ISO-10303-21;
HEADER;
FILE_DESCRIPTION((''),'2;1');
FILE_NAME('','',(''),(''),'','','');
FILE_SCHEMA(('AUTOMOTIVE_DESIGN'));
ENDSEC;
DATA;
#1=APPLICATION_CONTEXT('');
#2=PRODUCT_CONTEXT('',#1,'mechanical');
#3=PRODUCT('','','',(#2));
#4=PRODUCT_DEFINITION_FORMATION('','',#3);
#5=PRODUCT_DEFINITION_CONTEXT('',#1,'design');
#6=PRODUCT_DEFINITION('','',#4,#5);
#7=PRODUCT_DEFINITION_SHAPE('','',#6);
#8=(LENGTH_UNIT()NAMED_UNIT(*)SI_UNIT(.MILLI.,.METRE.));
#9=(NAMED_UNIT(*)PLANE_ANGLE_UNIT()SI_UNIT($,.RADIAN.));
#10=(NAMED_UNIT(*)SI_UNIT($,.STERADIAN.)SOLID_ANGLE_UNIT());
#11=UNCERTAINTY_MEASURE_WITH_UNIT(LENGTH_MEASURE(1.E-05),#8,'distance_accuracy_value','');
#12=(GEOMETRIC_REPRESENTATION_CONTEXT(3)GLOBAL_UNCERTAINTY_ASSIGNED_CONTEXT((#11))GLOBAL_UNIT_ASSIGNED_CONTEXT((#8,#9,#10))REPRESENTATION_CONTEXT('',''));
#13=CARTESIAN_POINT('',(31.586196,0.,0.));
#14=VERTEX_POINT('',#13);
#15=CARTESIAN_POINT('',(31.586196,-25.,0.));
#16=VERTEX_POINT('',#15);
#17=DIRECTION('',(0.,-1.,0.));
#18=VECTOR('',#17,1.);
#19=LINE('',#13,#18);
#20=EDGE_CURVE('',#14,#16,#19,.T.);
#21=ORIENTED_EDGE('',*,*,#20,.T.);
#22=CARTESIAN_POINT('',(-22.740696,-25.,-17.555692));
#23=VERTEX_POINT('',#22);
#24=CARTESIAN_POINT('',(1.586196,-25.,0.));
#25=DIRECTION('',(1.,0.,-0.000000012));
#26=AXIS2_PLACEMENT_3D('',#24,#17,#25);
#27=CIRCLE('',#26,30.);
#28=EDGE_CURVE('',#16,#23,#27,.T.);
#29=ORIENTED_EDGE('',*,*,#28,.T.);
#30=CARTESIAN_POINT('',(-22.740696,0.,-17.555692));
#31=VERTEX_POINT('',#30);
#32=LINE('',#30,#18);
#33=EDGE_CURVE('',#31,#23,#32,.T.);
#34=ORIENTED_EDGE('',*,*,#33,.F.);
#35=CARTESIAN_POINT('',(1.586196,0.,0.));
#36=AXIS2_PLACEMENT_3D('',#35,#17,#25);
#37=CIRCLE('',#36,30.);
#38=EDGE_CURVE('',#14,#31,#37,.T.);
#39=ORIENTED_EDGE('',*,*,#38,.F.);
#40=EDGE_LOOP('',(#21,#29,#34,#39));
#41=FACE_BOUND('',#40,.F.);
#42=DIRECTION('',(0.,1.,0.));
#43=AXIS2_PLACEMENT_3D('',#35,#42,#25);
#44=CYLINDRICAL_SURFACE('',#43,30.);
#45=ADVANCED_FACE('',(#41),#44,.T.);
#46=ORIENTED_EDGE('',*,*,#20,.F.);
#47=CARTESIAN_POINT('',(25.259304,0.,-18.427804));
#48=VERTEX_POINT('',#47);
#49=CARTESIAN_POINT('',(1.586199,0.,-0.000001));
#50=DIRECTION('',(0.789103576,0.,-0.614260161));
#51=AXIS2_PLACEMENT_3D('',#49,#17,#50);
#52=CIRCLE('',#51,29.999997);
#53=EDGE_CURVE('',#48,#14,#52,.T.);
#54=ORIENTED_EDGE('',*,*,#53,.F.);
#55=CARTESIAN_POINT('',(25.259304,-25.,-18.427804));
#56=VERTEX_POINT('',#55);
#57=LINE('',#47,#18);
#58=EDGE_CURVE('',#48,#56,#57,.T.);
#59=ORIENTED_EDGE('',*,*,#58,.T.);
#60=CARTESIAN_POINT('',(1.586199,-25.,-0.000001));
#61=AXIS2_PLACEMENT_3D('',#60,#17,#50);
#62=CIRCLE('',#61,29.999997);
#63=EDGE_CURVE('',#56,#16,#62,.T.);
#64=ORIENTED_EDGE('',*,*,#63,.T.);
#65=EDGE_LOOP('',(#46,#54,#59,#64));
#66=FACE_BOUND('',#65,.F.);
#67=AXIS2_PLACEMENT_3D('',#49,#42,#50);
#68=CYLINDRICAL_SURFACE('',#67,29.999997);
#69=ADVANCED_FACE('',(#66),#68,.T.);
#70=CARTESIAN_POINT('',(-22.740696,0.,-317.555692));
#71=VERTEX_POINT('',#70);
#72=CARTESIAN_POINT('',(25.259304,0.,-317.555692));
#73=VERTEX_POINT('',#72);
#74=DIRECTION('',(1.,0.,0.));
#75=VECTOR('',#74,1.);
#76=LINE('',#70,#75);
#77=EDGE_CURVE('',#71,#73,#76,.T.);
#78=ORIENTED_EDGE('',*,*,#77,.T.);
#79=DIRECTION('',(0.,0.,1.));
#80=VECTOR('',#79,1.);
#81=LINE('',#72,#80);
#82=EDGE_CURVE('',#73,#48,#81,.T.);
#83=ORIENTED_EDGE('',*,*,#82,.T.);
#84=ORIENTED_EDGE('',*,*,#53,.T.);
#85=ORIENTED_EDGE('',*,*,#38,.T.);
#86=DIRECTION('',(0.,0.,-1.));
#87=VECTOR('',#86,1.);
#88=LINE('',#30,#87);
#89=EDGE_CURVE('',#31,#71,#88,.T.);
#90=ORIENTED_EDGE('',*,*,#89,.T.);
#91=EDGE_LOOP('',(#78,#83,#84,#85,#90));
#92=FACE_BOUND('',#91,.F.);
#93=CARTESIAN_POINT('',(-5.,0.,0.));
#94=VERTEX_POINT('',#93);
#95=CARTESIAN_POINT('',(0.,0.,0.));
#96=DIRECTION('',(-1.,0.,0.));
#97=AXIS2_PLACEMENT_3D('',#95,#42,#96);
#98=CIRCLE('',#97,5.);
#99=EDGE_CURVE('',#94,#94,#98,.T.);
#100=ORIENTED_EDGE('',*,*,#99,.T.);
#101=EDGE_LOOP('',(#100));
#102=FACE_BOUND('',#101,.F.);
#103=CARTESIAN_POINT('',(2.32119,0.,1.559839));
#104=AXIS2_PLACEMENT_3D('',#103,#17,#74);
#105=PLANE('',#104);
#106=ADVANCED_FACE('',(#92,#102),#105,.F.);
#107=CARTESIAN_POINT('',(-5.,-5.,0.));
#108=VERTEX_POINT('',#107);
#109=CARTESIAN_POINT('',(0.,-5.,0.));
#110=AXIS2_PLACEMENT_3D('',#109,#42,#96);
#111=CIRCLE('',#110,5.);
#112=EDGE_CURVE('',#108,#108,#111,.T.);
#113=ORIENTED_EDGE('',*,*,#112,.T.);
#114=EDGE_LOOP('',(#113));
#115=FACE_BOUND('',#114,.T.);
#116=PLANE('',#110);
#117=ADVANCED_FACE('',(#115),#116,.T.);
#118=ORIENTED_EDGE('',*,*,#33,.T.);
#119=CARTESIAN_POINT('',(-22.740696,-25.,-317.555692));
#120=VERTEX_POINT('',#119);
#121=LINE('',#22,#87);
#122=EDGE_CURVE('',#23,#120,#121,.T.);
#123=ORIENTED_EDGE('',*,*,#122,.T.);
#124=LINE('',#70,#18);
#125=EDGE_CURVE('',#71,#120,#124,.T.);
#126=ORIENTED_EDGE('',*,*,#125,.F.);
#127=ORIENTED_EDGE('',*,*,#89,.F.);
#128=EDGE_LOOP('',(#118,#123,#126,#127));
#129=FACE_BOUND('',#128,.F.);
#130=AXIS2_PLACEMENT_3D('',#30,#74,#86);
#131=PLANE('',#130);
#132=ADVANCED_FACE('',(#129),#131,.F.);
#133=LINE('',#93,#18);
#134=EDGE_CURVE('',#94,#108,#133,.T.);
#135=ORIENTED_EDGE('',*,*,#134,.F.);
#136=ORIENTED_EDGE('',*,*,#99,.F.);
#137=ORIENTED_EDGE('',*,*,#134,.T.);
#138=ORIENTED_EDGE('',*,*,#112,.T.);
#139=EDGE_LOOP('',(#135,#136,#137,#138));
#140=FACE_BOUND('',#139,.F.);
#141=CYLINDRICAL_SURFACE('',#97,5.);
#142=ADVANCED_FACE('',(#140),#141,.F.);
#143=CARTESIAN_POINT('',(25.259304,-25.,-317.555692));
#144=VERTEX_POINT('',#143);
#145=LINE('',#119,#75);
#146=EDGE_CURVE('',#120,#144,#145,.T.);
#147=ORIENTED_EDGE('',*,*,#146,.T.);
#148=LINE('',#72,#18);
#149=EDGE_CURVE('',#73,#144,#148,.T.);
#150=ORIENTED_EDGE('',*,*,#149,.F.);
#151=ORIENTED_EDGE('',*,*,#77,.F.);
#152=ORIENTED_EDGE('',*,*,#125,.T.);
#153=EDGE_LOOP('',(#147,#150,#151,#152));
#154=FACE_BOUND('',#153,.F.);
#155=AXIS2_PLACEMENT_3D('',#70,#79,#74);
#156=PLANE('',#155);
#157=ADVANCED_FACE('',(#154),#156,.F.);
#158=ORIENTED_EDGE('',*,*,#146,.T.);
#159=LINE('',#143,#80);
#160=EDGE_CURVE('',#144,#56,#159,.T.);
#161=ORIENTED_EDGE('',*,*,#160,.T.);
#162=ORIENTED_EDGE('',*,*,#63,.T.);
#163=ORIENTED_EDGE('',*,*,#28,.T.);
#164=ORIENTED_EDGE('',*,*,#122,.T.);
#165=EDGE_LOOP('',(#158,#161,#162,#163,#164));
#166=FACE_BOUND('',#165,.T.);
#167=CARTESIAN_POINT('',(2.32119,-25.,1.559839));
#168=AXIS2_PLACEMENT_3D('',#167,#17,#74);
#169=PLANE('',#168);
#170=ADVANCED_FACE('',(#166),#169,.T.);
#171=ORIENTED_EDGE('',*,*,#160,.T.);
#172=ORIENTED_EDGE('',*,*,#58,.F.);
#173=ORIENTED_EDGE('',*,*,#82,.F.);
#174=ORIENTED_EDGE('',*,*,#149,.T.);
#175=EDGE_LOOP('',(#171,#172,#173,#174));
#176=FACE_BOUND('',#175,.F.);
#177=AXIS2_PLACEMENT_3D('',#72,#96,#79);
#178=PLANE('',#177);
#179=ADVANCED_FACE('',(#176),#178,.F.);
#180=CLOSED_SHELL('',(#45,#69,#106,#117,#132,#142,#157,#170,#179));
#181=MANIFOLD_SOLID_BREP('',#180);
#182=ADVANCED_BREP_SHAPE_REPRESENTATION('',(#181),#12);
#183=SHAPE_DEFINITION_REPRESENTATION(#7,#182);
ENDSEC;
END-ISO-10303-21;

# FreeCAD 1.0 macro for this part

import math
import FreeCAD as App
import Part
import Sketcher
from FreeCAD import Vector
Q = App.Units.Quantity

doc = App.newDocument("Part")
params = doc.addObject("Spreadsheet::Sheet", "Params")
for row, (alias, value) in enumerate([
    ("sketch1_radius", "30 mm"),
    ("sketch1_width", "48 mm"),
    ("sketch1_height", "300 mm"),
    ("pad1_length", "25 mm"),
    ("sketch2_diameter", "10 mm"),
    ("pocket1_length", "5 mm"),
], start=1):
    params.set(f"A{row}", alias)
    params.set(f"B{row}", "=" + value)
    params.setAlias(f"B{row}", alias)

body = doc.addObject("PartDesign::Body", "Body")

# Sketch on XZ plane
sketch1 = doc.addObject("Sketcher::SketchObject", "Sketch")
body.addObject(sketch1)
sketch1.AttachmentSupport = (doc.XZ_Plane, [""])
sketch1.MapMode = "FlatFace"
sketch1.addGeometry([
    Part.ArcOfCircle(Part.Circle(Vector(2, 0, 0), Vector(0, 0, 1), 30), math.radians(-38), math.radians(0)),  # 0
    Part.ArcOfCircle(Part.Circle(Vector(2, 0, 0), Vector(0, 0, 1), 30), math.radians(0), math.radians(216)),  # 1
    Part.LineSegment(Vector(-23, -18, 0), Vector(-23, -318, 0)),  # 2
    Part.LineSegment(Vector(-23, -318, 0), Vector(25, -318, 0)),  # 3
    Part.LineSegment(Vector(25, -318, 0), Vector(25, -18, 0)),  # 4
], False)
sketch1.addConstraint([
    Sketcher.Constraint("Tangent", 0, 2, 1, 1),
    Sketcher.Constraint("Coincident", 1, 2, 2, 1),
    Sketcher.Constraint("Coincident", 2, 2, 3, 1),
    Sketcher.Constraint("Coincident", 3, 2, 4, 1),
    Sketcher.Constraint("Coincident", 4, 2, 0, 1),
    Sketcher.Constraint("Vertical", 2),
    Sketcher.Constraint("Horizontal", 3),
    Sketcher.Constraint("Vertical", 4),
    Sketcher.Constraint("PointOnObject", 0, 3, -1),
    Sketcher.Constraint("PointOnObject", 0, 2, -1),
    Sketcher.Constraint("Radius", 1, Q("30 mm")),
    Sketcher.Constraint("DistanceX", 3, 1, 3, 2, Q("48 mm")),
    Sketcher.Constraint("DistanceY", 2, 2, 2, 1, Q("300 mm")),
    Sketcher.Constraint("Radius", 0, Q("29.999997 mm")),
    Sketcher.Constraint("DistanceY", 4, 1, 4, 2, Q("299.127888 mm")),
    Sketcher.Constraint("DistanceX", -1, 1, 0, 3, Q("1.586199 mm")),
])
sketch1.setExpression("Constraints[10]", "Params.sketch1_radius")
sketch1.setExpression("Constraints[11]", "Params.sketch1_width")
sketch1.setExpression("Constraints[12]", "Params.sketch1_height")
pad1 = doc.addObject("PartDesign::Pad", "Pad")
body.addObject(pad1)
pad1.Profile = sketch1
pad1.setExpression("Length", "Params.pad1_length")

# Sketch on XZ plane
sketch2 = doc.addObject("Sketcher::SketchObject", "Sketch001")
body.addObject(sketch2)
sketch2.AttachmentSupport = (doc.XZ_Plane, [""])
sketch2.MapMode = "FlatFace"
sketch2.addGeometry(Part.Circle(Vector(0, 0, 0), Vector(0, 0, 1), 5), False)
sketch2.addConstraint([
    Sketcher.Constraint("Coincident", 0, 3, -1, 1),
    Sketcher.Constraint("Diameter", 0, Q("10 mm")),
])
sketch2.setExpression("Constraints[1]", "Params.sketch2_diameter")
pocket1 = doc.addObject("PartDesign::Pocket", "Pocket")
body.addObject(pocket1)
pocket1.Profile = sketch2
pocket1.setExpression("Length", "Params.pocket1_length")
pocket1.Reversed = True

doc.recompute()
